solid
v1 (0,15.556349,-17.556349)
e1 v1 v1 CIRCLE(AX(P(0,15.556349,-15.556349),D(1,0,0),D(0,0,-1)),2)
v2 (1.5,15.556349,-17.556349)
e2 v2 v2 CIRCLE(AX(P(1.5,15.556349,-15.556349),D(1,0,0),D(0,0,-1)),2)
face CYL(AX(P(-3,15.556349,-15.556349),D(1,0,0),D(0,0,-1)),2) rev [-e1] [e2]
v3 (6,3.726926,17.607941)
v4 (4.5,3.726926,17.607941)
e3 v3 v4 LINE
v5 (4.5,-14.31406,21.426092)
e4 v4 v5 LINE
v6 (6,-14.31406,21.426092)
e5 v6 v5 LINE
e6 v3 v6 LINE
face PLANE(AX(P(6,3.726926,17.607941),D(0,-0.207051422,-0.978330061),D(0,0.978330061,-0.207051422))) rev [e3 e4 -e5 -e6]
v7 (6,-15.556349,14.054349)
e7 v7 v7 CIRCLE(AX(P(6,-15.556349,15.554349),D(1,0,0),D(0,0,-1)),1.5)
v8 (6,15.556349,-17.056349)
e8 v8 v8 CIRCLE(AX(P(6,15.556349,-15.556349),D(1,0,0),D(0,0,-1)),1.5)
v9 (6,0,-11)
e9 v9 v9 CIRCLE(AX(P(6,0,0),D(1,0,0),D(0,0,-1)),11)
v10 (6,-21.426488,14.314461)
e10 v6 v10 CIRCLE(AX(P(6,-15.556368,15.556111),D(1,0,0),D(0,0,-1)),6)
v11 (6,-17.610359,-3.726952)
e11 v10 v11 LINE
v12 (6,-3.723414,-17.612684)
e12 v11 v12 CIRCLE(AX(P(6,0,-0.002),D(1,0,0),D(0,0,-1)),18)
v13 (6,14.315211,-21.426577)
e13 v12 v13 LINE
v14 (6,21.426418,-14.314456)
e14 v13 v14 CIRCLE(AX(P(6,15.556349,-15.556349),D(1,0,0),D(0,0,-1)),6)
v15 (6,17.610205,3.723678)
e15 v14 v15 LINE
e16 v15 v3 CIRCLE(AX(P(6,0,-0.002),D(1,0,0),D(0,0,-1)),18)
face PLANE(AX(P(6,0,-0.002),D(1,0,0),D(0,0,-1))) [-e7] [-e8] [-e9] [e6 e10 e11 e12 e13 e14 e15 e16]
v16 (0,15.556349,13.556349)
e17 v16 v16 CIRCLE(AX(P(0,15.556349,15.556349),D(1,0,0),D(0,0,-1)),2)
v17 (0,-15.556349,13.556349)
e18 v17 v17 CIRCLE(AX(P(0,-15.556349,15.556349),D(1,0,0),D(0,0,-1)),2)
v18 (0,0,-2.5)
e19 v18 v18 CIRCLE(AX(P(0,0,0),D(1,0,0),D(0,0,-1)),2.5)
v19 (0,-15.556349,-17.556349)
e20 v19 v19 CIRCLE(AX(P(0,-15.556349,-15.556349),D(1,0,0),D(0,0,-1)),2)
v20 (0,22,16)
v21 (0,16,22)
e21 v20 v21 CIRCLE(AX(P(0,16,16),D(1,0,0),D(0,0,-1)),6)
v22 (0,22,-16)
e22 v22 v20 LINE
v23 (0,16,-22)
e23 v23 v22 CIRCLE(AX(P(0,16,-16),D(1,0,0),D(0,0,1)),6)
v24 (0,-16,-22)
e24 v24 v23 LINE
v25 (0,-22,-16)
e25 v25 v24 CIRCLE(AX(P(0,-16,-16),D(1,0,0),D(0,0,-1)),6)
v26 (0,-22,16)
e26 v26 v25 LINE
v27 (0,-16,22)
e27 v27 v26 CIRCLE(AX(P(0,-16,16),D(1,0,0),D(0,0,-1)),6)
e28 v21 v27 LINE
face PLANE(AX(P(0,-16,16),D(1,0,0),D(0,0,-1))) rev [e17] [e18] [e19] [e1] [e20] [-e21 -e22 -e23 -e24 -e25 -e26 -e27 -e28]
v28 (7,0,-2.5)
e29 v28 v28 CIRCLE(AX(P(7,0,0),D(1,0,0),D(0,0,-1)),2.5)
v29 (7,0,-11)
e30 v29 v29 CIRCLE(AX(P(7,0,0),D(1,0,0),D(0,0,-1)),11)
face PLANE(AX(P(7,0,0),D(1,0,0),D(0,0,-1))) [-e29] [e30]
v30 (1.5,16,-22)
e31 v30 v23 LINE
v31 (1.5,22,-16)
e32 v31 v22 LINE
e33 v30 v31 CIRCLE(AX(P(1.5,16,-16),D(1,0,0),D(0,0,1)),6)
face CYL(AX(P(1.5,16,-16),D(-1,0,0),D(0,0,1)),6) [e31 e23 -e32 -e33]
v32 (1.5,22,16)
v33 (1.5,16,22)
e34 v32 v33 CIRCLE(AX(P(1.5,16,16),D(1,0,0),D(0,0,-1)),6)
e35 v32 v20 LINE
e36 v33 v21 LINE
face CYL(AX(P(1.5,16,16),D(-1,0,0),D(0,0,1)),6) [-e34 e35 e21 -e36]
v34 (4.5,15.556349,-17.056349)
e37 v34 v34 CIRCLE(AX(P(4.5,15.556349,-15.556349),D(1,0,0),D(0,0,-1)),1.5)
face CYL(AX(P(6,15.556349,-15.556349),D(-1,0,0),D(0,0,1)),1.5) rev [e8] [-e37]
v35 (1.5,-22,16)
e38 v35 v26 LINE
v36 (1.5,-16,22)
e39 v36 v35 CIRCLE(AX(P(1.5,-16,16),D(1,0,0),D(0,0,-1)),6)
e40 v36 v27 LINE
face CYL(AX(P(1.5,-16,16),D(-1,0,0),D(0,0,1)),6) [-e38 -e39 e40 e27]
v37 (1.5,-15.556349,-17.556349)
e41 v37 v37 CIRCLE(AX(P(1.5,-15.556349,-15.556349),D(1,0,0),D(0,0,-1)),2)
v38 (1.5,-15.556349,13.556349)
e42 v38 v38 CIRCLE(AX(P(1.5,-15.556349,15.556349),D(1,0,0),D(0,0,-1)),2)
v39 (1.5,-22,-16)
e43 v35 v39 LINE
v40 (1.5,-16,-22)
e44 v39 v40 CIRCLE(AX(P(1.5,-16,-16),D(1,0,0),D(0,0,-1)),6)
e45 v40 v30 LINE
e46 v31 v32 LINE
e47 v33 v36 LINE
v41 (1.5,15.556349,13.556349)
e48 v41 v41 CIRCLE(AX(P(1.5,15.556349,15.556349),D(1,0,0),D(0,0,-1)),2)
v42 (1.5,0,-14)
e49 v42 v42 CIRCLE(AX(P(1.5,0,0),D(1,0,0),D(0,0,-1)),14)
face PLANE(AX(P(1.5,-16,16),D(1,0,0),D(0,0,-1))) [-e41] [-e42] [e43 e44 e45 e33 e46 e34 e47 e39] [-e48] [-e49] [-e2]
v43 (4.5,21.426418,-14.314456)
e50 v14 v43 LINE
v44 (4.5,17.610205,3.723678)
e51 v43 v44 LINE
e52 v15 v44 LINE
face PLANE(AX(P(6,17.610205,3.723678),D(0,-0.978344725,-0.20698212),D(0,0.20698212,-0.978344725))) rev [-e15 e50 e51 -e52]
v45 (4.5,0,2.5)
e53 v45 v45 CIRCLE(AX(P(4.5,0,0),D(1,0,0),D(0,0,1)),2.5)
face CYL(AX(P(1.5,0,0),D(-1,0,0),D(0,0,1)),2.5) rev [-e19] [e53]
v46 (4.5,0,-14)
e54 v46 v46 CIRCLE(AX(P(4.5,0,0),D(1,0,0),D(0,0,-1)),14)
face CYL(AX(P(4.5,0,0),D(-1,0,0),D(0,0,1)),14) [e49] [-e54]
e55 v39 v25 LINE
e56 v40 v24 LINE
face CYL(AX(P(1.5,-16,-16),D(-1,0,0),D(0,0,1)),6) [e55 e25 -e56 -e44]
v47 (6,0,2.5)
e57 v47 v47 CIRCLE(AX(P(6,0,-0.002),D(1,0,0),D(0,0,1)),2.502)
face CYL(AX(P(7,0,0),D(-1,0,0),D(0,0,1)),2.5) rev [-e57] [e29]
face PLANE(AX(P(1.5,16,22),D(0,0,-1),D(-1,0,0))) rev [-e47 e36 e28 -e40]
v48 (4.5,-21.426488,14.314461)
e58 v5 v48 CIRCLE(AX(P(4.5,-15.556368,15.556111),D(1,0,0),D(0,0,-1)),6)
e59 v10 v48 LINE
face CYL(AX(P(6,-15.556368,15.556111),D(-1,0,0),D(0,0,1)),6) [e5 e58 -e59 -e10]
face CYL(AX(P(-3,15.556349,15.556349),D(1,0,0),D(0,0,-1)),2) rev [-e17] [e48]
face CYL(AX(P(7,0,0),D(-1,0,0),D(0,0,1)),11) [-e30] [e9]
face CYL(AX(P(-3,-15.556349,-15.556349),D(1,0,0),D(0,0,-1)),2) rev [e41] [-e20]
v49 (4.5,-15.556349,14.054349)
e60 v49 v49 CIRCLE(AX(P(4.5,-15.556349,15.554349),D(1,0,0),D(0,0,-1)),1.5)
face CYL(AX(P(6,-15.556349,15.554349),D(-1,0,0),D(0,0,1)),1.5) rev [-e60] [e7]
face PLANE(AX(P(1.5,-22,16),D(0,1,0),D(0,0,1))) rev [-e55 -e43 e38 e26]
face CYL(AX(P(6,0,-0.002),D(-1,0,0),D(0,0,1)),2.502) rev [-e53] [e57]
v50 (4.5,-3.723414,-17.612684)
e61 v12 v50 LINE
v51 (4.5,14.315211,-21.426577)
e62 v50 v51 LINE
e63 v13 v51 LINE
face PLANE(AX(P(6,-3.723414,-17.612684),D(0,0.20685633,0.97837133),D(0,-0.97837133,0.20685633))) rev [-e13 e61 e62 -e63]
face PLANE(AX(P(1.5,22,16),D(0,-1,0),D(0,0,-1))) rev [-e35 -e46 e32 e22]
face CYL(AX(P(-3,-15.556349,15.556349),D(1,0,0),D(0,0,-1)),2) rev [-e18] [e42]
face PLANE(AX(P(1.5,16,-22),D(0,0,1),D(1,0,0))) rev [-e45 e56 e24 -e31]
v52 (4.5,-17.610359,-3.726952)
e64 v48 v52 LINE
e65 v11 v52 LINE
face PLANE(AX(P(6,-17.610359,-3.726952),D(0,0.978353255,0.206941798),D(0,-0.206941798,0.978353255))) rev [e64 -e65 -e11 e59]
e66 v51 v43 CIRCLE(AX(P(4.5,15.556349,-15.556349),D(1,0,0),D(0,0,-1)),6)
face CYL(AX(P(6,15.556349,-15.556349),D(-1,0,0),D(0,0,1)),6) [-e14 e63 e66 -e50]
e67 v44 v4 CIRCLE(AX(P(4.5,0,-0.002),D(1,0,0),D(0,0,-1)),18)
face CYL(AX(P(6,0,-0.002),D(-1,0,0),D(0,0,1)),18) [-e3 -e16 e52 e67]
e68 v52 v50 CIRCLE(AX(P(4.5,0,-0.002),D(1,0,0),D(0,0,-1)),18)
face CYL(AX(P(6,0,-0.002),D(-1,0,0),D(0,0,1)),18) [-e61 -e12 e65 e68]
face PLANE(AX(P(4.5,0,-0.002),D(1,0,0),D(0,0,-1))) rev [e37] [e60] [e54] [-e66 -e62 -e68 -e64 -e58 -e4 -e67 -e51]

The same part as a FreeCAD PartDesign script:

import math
import FreeCAD as App
import Part
import Sketcher
Q = App.Units.Quantity

doc = App.newDocument("Part")
body = doc.addObject("PartDesign::Body", "Body")

# Sketch on YZ plane
sketch1 = body.newObject("Sketcher::SketchObject", "Sketch")
sketch1.AttachmentSupport = (doc.getObject("YZ_Plane"), [""])
sketch1.MapMode = "FlatFace"
sketch1.addGeometry([
    Part.LineSegment(App.Vector(22, -16, 0), App.Vector(22, 16, 0)),  # 0
    Part.ArcOfCircle(Part.Circle(App.Vector(16, 16, 0), App.Vector(0, 0, 1), 6), math.radians(0), math.radians(90)),  # 1
    Part.LineSegment(App.Vector(16, 22, 0), App.Vector(-16, 22, 0)),  # 2
    Part.ArcOfCircle(Part.Circle(App.Vector(-16, 16, 0), App.Vector(0, 0, 1), 6), math.radians(90), math.radians(180)),  # 3
    Part.LineSegment(App.Vector(-22, 16, 0), App.Vector(-22, -16, 0)),  # 4
    Part.ArcOfCircle(Part.Circle(App.Vector(-16, -16, 0), App.Vector(0, 0, 1), 6), math.radians(180), math.radians(270)),  # 5
    Part.LineSegment(App.Vector(-16, -22, 0), App.Vector(16, -22, 0)),  # 6
    Part.ArcOfCircle(Part.Circle(App.Vector(16, -16, 0), App.Vector(0, 0, 1), 6), math.radians(-90), math.radians(0)),  # 7
    Part.Circle(App.Vector(0, 0, 0), App.Vector(0, 0, 1), 2.5),  # 8
], False)
sketch1.addConstraint([
    Sketcher.Constraint("Tangent", 0, 2, 1, 1),
    Sketcher.Constraint("Tangent", 1, 2, 2, 1),
    Sketcher.Constraint("Tangent", 2, 2, 3, 1),
    Sketcher.Constraint("Tangent", 3, 2, 4, 1),
    Sketcher.Constraint("Tangent", 4, 2, 5, 1),
    Sketcher.Constraint("Tangent", 5, 2, 6, 1),
    Sketcher.Constraint("Tangent", 6, 2, 7, 1),
    Sketcher.Constraint("Tangent", 7, 2, 0, 1),
    Sketcher.Constraint("Vertical", 0),
    Sketcher.Constraint("Horizontal", 2),
    Sketcher.Constraint("Vertical", 4),
    Sketcher.Constraint("Horizontal", 6),
    Sketcher.Constraint("Coincident", 8, 3, -1, 1),
    Sketcher.Constraint("Equal", 1, 3),
    Sketcher.Constraint("Equal", 3, 5),
    Sketcher.Constraint("Equal", 5, 7),
    Sketcher.Constraint("Symmetric", 1, 3, 5, 3, -1, 1),
    Sketcher.Constraint("Equal", 6, 0),
    Sketcher.Constraint("Diameter", 8, Q("5 mm")),
    Sketcher.Constraint("Radius", 1, Q("6 mm")),
    Sketcher.Constraint("DistanceX", 2, 2, 2, 1, Q("32 mm")),
])
pad1 = body.newObject("PartDesign::Pad", "Pad")
pad1.Profile = sketch1
pad1.Length = 1.5

# Sketch on YZ plane
sketch2 = body.newObject("Sketcher::SketchObject", "Sketch001")
sketch2.AttachmentSupport = (doc.getObject("YZ_Plane"), [""])
sketch2.MapMode = "FlatFace"
sketch2.AttachmentOffset = App.Placement(App.Vector(0, 0, 1.5), App.Rotation())
sketch2.addGeometry([
    Part.Circle(App.Vector(0, 0, 0), App.Vector(0, 0, 1), 14),
    Part.Circle(App.Vector(0, 0, 0), App.Vector(0, 0, 1), 2.5),
], False)
sketch2.addConstraint([
    Sketcher.Constraint("Coincident", 0, 3, -1, 1),
    Sketcher.Constraint("Coincident", 1, 3, -1, 1),
    Sketcher.Constraint("Diameter", 0, Q("28 mm")),
    Sketcher.Constraint("Diameter", 1, Q("5 mm")),
])
pad2 = body.newObject("PartDesign::Pad", "Pad001")
pad2.Profile = sketch2
pad2.Length = 3

# Sketch on YZ plane
sketch3 = body.newObject("Sketcher::SketchObject", "Sketch002")
sketch3.AttachmentSupport = (doc.getObject("YZ_Plane"), [""])
sketch3.MapMode = "FlatFace"
sketch3.AttachmentOffset = App.Placement(App.Vector(0, 0, 4.5), App.Rotation())
sketch3.addGeometry([
    Part.LineSegment(App.Vector(21.4, -14.3, 0), App.Vector(17.6, 3.7, 0)),  # 0
    Part.ArcOfCircle(Part.Circle(App.Vector(0, 0, 0), App.Vector(0, 0, 1), 18), math.radians(12), math.radians(78)),  # 1
    Part.LineSegment(App.Vector(3.7, 17.6, 0), App.Vector(-14.3, 21.4, 0)),  # 2
    Part.ArcOfCircle(Part.Circle(App.Vector(-15.6, 15.6, 0), App.Vector(0, 0, 1), 6), math.radians(78), math.radians(192)),  # 3
    Part.LineSegment(App.Vector(-21.4, 14.3, 0), App.Vector(-17.6, -3.7, 0)),  # 4
    Part.ArcOfCircle(Part.Circle(App.Vector(0, 0, 0), App.Vector(0, 0, 1), 18), math.radians(-168), math.radians(-102)),  # 5
    Part.LineSegment(App.Vector(-3.7, -17.6, 0), App.Vector(14.3, -21.4, 0)),  # 6
    Part.ArcOfCircle(Part.Circle(App.Vector(15.6, -15.6, 0), App.Vector(0, 0, 1), 6), math.radians(-102), math.radians(12)),  # 7
    Part.Circle(App.Vector(-15.6, 15.6, 0), App.Vector(0, 0, 1), 1.5),  # 8
    Part.Circle(App.Vector(0, 0, 0), App.Vector(0, 0, 1), 2.5),  # 9
    Part.Circle(App.Vector(15.6, -15.6, 0), App.Vector(0, 0, 1), 1.5),  # 10
], False)
sketch3.addConstraint([
    Sketcher.Constraint("Tangent", 0, 2, 1, 1),
    Sketcher.Constraint("Tangent", 1, 2, 2, 1),
    Sketcher.Constraint("Tangent", 2, 2, 3, 1),
    Sketcher.Constraint("Tangent", 3, 2, 4, 1),
    Sketcher.Constraint("Tangent", 4, 2, 5, 1),
    Sketcher.Constraint("Tangent", 5, 2, 6, 1),
    Sketcher.Constraint("Tangent", 6, 2, 7, 1),
    Sketcher.Constraint("Tangent", 7, 2, 0, 1),
    Sketcher.Constraint("Coincident", 5, 3, 1, 3),
    Sketcher.Constraint("Coincident", 9, 3, 1, 3),
    Sketcher.Constraint("Coincident", 10, 3, 7, 3),
    Sketcher.Constraint("Equal", 1, 5),
    Sketcher.Constraint("Equal", 3, 7),
    Sketcher.Constraint("Equal", 8, 10),
    Sketcher.Constraint("PointOnObject", 1, 3, -2),
    Sketcher.Constraint("Diameter", 8, Q("3 mm")),
    Sketcher.Constraint("Radius", 1, Q("18 mm")),
    Sketcher.Constraint("Radius", 3, Q("6 mm")),
    Sketcher.Constraint("Diameter", 9, Q("5.004 mm")),
    Sketcher.Constraint("DistanceY", 1, 3, -1, 1, Q("0.002 mm")),
    Sketcher.Constraint("Distance", 0, Q("18.437402 mm")),
    Sketcher.Constraint("DistanceX", 8, 3, 7, 3, Q("31.112698 mm")),
    Sketcher.Constraint("DistanceY", 7, 3, 8, 3, Q("31.110698 mm")),
    Sketcher.Constraint("DistanceY", 4, 2, 8, 3, Q("19.281302 mm")),
    Sketcher.Constraint("Distance", 2, Q("18.440592 mm")),
    Sketcher.Constraint("DistanceX", 3, 3, -1, 1, Q("15.556368 mm")),
])
pad3 = body.newObject("PartDesign::Pad", "Pad002")
pad3.Profile = sketch3
pad3.Length = 1.5

# Sketch on YZ plane
sketch4 = body.newObject("Sketcher::SketchObject", "Sketch003")
sketch4.AttachmentSupport = (doc.getObject("YZ_Plane"), [""])
sketch4.MapMode = "FlatFace"
sketch4.AttachmentOffset = App.Placement(App.Vector(0, 0, 4.5), App.Rotation())
sketch4.addGeometry([
    Part.Circle(App.Vector(15.6, -15.6, 0), App.Vector(0, 0, 1), 2),
    Part.Circle(App.Vector(-15.6, -15.6, 0), App.Vector(0, 0, 1), 2),
    Part.Circle(App.Vector(-15.6, 15.6, 0), App.Vector(0, 0, 1), 2),
    Part.Circle(App.Vector(15.6, 15.6, 0), App.Vector(0, 0, 1), 2),
], False)
sketch4.addConstraint([
    Sketcher.Constraint("Equal", 0, 1),
    Sketcher.Constraint("Equal", 1, 2),
    Sketcher.Constraint("Equal", 2, 3),
    Sketcher.Constraint("Symmetric", 0, 3, 2, 3, -1, 1),
    Sketcher.Constraint("Symmetric", 1, 3, 3, 3, -1, 1),
    Sketcher.Constraint("Symmetric", 0, 3, 1, 3, -2),
    Sketcher.Constraint("Diameter", 0, Q("4 mm")),
    Sketcher.Constraint("DistanceX", 1, 3, 0, 3, Q("31.112698 mm")),
    Sketcher.Constraint("DistanceY", 1, 3, 2, 3, Q("31.112698 mm")),
])
pocket1 = body.newObject("PartDesign::Pocket", "Pocket")
pocket1.Profile = sketch4
pocket1.Length = 7.5

# Sketch on YZ plane
sketch5 = body.newObject("Sketcher::SketchObject", "Sketch004")
sketch5.AttachmentSupport = (doc.getObject("YZ_Plane"), [""])
sketch5.MapMode = "FlatFace"
sketch5.AttachmentOffset = App.Placement(App.Vector(0, 0, 6), App.Rotation())
sketch5.addGeometry([
    Part.Circle(App.Vector(0, 0, 0), App.Vector(0, 0, 1), 11),
    Part.Circle(App.Vector(0, 0, 0), App.Vector(0, 0, 1), 2.5),
], False)
sketch5.addConstraint([
    Sketcher.Constraint("Coincident", 0, 3, -1, 1),
    Sketcher.Constraint("Coincident", 1, 3, -1, 1),
    Sketcher.Constraint("Diameter", 0, Q("22 mm")),
    Sketcher.Constraint("Diameter", 1, Q("5 mm")),
])
pad4 = body.newObject("PartDesign::Pad", "Pad003")
pad4.Profile = sketch5
pad4.Length = 1

doc.recompute()
